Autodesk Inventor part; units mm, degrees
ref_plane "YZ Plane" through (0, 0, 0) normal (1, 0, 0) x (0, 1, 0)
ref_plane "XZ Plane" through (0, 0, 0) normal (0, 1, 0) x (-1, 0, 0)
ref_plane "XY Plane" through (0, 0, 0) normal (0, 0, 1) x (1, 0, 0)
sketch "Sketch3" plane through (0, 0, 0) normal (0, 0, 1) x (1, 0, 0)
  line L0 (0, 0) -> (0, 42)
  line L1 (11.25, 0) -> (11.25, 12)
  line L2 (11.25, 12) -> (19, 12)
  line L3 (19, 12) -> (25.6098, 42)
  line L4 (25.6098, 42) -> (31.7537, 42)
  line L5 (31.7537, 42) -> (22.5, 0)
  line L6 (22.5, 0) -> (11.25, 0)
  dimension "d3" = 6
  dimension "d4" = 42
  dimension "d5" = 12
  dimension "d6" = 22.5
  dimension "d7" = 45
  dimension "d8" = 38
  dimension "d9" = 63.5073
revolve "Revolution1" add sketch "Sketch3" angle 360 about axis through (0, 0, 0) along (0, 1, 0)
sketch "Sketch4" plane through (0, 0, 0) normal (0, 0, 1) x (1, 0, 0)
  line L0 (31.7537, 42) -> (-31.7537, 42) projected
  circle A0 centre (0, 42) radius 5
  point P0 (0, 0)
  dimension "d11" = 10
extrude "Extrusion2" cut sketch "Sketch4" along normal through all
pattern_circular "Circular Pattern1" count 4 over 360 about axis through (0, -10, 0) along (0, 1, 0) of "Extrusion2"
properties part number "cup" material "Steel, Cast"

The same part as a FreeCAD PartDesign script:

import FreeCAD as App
import Part
import Sketcher
Q = App.Units.Quantity


def add_polygon(sketch, points):
    """Adds a closed chain of lines whose ends are joined by coincident constraints."""
    first, n = sketch.GeometryCount, len(points)
    for a, b in zip(points, points[1:] + points[:1]):
        sketch.addGeometry(Part.LineSegment(App.Vector(*a, 0), App.Vector(*b, 0)), False)
    for i in range(n):
        sketch.addConstraint(Sketcher.Constraint("Coincident", first + i, 2, first + (i + 1) % n, 1))

doc = App.newDocument("Part")
body = doc.addObject("PartDesign::Body", "Body")

# Sketch on XY plane
sketch1 = body.newObject("Sketcher::SketchObject", "Sketch")
sketch1.AttachmentSupport = (doc.getObject("XY_Plane"), [""])
sketch1.MapMode = "FlatFace"
add_polygon(sketch1, [(11, 12), (11, 0), (22, 0), (32, 42), (26, 42), (19, 12)])  # lines 0-5
sketch1.addConstraint([
    Sketcher.Constraint("Vertical", 0),
    Sketcher.Constraint("Horizontal", 1),
    Sketcher.Constraint("Horizontal", 3),
    Sketcher.Constraint("Horizontal", 5),
    Sketcher.Constraint("PointOnObject", 0, 2, -1),
    Sketcher.Constraint("Parallel", 2, 4),
    Sketcher.Constraint("DistanceY", 0, 2, 0, 1, Q("12 mm")),
    Sketcher.Constraint("DistanceY", -1, 1, 2, 2, Q("42 mm")),
    Sketcher.Constraint("DistanceX", -1, 1, 1, 2, Q("22.5 mm")),
    Sketcher.Constraint("DistanceX", -1, 1, 4, 2, Q("19 mm")),
    Sketcher.Constraint("DistanceX", 1, 1, 1, 2, Q("11.25 mm")),
    Sketcher.Constraint("DistanceX", 3, 2, 3, 1, Q("6.144 mm")),
])
revolution = body.newObject("PartDesign::Revolution", "Revolution")
revolution.Profile = sketch1
revolution.ReferenceAxis = (sketch1, ["V_Axis"])
revolution.Angle = 360

# Sketch on XY plane
sketch2 = body.newObject("Sketcher::SketchObject", "Sketch001")
sketch2.AttachmentSupport = (doc.getObject("XY_Plane"), [""])
sketch2.MapMode = "FlatFace"
sketch2.addGeometry(Part.Circle(App.Vector(0, 42, 0), App.Vector(0, 0, 1), 5), False)
sketch2.addConstraint([
    Sketcher.Constraint("PointOnObject", 0, 3, -2),
    Sketcher.Constraint("Diameter", 0, Q("10 mm")),
    Sketcher.Constraint("DistanceY", -1, 1, 0, 3, Q("42 mm")),
])
pocket1 = body.newObject("PartDesign::Pocket", "Pocket")
pocket1.Profile = sketch2
pocket1.Type = "ThroughAll"
pocket1.Reversed = True
doc.recompute()

polarpattern = body.newObject("PartDesign::PolarPattern", "PolarPattern")
polarpattern.Originals = [pocket1]
polarpattern.Axis = (doc.getObject("Y_Axis"), [""])
polarpattern.Angle = 360
polarpattern.Occurrences = 4
body.Tip = polarpattern

doc.recompute()
